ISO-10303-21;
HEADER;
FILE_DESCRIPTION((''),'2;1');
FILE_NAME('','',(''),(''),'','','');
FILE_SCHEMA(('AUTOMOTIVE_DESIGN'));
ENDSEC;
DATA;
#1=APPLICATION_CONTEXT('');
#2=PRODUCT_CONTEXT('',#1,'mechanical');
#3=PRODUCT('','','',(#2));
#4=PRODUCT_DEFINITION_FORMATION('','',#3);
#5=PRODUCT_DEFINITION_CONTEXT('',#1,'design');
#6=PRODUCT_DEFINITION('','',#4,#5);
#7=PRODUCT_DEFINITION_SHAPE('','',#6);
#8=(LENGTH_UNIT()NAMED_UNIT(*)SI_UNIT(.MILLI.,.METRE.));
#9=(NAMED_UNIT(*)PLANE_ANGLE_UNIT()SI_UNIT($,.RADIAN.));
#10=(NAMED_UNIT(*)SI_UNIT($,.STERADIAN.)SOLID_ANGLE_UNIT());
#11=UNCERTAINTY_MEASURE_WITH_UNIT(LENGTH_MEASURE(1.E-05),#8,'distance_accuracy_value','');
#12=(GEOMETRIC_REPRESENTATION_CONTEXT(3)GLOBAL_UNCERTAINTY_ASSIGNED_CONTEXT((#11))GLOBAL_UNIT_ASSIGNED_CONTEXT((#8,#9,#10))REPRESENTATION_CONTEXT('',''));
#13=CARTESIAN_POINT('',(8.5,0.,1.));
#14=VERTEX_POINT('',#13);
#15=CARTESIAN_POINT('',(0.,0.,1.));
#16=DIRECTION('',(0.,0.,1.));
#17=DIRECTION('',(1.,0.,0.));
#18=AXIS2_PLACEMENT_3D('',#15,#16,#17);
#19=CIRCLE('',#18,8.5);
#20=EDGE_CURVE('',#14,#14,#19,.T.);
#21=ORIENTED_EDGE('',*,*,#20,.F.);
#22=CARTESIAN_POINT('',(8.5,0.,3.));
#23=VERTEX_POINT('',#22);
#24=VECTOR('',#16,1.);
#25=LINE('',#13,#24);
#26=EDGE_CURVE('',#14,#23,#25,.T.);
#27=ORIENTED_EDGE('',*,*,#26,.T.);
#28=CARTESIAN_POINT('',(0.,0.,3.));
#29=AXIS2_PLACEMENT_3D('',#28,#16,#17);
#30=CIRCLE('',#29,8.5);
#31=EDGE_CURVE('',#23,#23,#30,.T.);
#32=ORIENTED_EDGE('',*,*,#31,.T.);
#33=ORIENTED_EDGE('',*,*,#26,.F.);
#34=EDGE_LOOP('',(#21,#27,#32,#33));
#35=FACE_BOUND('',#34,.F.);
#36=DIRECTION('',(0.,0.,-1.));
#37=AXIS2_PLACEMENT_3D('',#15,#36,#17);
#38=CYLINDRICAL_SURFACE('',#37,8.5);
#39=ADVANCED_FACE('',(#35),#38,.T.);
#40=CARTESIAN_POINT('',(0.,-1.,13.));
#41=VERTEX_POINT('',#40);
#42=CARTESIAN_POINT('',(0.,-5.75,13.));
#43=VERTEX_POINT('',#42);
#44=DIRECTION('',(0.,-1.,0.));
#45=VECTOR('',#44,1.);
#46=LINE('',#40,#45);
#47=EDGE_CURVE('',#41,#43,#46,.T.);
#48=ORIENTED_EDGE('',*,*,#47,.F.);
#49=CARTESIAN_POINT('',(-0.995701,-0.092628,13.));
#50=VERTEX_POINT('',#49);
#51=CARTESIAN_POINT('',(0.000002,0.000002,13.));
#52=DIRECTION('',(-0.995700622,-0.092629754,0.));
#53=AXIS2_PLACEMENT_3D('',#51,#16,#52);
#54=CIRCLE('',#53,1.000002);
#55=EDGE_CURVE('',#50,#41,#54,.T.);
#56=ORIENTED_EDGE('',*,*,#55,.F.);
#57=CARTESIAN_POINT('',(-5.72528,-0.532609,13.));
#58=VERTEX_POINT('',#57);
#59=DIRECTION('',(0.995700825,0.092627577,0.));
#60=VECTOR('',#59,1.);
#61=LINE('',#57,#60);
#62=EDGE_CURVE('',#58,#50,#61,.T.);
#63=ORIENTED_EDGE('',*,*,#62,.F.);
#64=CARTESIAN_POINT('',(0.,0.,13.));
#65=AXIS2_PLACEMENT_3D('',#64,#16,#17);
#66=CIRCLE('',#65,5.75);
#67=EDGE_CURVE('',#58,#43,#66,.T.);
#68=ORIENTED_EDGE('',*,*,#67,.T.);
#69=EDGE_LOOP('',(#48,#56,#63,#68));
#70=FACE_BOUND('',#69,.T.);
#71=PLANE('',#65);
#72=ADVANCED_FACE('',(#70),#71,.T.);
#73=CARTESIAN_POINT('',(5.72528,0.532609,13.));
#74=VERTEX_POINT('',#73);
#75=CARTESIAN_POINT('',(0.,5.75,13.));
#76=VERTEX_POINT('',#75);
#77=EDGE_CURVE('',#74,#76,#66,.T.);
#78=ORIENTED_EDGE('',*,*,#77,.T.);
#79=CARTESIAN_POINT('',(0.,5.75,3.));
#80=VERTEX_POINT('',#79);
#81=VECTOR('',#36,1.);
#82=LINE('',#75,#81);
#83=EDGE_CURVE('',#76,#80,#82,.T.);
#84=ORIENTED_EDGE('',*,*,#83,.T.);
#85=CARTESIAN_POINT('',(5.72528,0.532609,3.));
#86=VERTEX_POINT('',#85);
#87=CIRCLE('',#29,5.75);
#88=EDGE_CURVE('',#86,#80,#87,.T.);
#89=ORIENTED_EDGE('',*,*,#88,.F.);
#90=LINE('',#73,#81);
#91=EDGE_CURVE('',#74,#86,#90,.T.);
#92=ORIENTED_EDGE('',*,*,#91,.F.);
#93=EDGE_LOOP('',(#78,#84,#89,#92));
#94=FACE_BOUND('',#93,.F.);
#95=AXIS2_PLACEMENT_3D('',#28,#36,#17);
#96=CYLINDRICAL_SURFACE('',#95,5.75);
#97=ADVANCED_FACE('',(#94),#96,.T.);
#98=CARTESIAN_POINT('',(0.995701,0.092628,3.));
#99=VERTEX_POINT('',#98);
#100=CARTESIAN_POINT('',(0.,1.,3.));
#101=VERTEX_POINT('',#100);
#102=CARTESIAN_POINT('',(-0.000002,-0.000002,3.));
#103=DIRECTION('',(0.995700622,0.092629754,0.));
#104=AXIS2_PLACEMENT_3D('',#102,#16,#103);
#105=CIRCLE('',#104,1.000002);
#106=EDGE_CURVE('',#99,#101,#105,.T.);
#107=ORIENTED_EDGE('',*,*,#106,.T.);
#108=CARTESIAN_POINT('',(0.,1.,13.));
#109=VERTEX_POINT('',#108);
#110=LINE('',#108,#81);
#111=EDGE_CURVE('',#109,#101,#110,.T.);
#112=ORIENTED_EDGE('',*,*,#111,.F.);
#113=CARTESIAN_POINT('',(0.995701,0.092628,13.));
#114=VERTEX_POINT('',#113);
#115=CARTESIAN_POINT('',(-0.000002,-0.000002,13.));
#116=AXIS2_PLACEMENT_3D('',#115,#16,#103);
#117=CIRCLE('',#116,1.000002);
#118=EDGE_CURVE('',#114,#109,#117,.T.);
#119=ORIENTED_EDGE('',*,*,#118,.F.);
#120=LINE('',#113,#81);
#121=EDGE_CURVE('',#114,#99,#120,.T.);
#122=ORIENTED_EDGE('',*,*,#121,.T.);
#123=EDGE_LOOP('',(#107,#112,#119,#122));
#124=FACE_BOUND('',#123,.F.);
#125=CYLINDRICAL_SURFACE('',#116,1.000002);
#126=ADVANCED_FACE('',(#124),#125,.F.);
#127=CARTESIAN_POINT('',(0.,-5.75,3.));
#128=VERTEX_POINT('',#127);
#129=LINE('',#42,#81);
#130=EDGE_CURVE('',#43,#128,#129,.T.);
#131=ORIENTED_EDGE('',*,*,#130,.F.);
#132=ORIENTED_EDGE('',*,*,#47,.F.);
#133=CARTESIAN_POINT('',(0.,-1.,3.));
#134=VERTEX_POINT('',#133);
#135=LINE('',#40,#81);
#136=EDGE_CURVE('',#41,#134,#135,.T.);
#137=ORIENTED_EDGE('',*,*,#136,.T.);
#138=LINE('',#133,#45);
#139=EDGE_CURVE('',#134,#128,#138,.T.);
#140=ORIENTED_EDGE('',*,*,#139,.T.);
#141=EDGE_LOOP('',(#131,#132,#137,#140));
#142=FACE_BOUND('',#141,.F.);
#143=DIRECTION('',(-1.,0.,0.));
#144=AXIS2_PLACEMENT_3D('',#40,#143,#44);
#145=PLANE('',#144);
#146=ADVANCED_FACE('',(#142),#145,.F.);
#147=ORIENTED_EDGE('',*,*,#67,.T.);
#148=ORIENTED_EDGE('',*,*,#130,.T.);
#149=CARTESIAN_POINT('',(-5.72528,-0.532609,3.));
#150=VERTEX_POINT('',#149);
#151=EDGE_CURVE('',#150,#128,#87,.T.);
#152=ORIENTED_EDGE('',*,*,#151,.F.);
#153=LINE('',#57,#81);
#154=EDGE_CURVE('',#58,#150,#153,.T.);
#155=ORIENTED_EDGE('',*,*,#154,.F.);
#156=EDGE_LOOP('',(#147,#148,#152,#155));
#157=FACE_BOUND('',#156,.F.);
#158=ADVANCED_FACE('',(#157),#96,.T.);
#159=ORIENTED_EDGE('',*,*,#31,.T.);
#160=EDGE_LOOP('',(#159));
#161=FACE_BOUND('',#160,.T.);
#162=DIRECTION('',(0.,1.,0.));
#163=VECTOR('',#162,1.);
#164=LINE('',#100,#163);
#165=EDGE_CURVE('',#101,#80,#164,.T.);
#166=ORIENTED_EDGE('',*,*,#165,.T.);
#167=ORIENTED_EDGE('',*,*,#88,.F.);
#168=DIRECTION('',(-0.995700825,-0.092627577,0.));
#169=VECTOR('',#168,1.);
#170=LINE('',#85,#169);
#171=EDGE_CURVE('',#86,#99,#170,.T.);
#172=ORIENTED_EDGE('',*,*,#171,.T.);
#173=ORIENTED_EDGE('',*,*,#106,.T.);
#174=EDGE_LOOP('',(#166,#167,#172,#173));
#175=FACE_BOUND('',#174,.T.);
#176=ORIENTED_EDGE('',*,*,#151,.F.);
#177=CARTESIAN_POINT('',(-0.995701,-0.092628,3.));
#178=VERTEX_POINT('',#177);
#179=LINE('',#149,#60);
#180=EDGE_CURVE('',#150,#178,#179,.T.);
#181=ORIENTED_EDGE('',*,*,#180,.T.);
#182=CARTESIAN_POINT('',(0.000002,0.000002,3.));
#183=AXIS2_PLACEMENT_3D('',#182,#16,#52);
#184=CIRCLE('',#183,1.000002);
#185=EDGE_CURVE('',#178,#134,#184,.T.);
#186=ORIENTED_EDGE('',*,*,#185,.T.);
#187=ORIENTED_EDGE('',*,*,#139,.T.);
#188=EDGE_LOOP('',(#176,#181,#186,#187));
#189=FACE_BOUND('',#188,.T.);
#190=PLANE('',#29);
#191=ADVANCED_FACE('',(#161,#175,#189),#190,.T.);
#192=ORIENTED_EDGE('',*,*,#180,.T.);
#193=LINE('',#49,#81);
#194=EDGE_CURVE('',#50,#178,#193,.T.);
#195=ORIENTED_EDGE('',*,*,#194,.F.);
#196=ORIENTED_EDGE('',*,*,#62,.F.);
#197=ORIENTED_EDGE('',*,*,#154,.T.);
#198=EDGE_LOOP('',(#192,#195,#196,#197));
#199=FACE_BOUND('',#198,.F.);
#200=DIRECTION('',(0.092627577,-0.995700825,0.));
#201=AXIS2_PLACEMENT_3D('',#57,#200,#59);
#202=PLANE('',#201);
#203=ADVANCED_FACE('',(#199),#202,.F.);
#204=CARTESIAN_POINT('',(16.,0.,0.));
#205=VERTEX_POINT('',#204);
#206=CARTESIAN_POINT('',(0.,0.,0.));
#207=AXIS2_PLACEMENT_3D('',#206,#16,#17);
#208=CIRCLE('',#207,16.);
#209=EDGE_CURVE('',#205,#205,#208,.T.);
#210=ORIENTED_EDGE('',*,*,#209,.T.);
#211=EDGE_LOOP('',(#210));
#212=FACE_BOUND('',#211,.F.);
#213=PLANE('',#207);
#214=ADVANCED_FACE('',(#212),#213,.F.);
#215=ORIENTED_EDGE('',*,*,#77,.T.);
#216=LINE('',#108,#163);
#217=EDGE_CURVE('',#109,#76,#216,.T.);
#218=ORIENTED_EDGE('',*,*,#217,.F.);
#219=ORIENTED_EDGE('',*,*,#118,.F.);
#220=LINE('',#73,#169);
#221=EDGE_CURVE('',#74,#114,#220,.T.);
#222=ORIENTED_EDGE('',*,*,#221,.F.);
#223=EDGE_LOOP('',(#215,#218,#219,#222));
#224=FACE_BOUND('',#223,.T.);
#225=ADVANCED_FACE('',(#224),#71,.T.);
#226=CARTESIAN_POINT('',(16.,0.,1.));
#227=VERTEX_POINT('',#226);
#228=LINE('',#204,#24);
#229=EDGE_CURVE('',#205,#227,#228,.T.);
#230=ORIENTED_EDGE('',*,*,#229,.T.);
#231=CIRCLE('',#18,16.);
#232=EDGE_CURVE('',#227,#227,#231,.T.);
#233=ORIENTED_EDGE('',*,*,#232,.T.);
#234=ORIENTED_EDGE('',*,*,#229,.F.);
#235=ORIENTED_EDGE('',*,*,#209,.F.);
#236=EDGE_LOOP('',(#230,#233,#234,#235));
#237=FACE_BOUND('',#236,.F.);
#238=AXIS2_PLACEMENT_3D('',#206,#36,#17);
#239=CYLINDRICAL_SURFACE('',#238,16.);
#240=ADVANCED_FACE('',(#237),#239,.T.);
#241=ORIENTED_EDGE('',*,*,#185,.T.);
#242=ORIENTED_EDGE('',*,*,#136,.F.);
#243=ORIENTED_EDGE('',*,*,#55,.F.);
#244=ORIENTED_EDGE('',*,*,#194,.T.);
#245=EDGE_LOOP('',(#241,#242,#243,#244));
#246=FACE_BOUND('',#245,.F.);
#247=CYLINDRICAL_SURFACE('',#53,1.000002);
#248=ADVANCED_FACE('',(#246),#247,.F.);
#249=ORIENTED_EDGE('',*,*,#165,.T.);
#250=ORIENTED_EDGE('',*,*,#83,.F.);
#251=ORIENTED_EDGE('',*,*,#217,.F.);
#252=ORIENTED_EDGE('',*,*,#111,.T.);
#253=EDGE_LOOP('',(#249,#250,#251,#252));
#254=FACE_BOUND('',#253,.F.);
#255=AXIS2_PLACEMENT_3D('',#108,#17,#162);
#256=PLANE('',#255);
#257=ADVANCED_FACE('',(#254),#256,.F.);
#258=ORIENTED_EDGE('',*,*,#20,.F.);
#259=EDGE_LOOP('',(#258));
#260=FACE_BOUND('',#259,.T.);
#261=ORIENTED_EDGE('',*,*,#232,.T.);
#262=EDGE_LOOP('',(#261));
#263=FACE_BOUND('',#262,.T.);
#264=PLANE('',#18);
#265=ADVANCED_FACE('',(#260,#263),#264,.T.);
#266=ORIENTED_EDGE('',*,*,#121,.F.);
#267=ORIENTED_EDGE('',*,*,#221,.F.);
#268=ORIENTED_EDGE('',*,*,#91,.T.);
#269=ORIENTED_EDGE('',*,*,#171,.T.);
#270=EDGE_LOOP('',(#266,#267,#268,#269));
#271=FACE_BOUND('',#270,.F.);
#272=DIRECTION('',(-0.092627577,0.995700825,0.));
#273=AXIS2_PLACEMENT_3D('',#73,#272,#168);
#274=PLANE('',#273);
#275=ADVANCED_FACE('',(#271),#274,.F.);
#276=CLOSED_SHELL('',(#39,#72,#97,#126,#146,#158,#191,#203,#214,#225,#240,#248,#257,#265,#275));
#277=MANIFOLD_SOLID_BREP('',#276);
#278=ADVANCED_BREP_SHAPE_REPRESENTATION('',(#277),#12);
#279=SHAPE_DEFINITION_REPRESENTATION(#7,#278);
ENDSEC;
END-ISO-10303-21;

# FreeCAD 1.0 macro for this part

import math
import FreeCAD as App
import Part
import Sketcher

V = App.Vector

doc = App.newDocument("Part")
body = doc.addObject("PartDesign::Body", "Body")

# Sketch on XY plane
sketch1 = body.newObject("Sketcher::SketchObject", "Sketch")
sketch1.AttachmentSupport = (doc.getObject("XY_Plane"), [""])
sketch1.MapMode = "FlatFace"
sketch1.addGeometry(Part.Circle(V(0, 0, 0), V(0, 0, 1), 16), False)
sketch1.addConstraint([
    Sketcher.Constraint("Coincident", 0, 3, -1, 1),
    Sketcher.Constraint("Diameter", 0, 32.0),
])
pad1 = body.newObject("PartDesign::Pad", "Pad")
pad1.Profile = sketch1
pad1.Length = 1

# Sketch on XY plane
sketch2 = body.newObject("Sketcher::SketchObject", "Sketch001")
sketch2.AttachmentSupport = (doc.getObject("XY_Plane"), [""])
sketch2.MapMode = "FlatFace"
sketch2.AttachmentOffset = App.Placement(V(0, 0, 1), App.Rotation())
sketch2.addGeometry(Part.Circle(V(0, 0, 0), V(0, 0, 1), 8.5), False)
sketch2.addConstraint([
    Sketcher.Constraint("Coincident", 0, 3, -1, 1),
    Sketcher.Constraint("Diameter", 0, 17.0),
])
pad2 = body.newObject("PartDesign::Pad", "Pad001")
pad2.Profile = sketch2
pad2.Length = 2

# Sketch on XY plane
sketch3 = body.newObject("Sketcher::SketchObject", "Sketch002")
sketch3.AttachmentSupport = (doc.getObject("XY_Plane"), [""])
sketch3.MapMode = "FlatFace"
sketch3.AttachmentOffset = App.Placement(V(0, 0, 3), App.Rotation())
sketch3.addGeometry(Part.Circle(V(0, 0, 0), V(0, 0, 1), 5.75), False)
sketch3.addConstraint([
    Sketcher.Constraint("Coincident", 0, 3, -1, 1),
    Sketcher.Constraint("Diameter", 0, 11.5),
])
pad3 = body.newObject("PartDesign::Pad", "Pad002")
pad3.Profile = sketch3
pad3.Length = 10

# Sketch on XY plane
sketch4 = body.newObject("Sketcher::SketchObject", "Sketch003")
sketch4.AttachmentSupport = (doc.getObject("XY_Plane"), [""])
sketch4.MapMode = "FlatFace"
sketch4.AttachmentOffset = App.Placement(V(0, 0, 13), App.Rotation())
sketch4.addGeometry([
    Part.LineSegment(V(0, 1, 0), V(0, 5.75, 0)),  # 0
    Part.ArcOfCircle(Part.Circle(V(0.000001, -0.000001, 0), V(0, 0, 1), 5.750001), math.radians(90.000007), math.radians(185.314782)),  # 1
    Part.LineSegment(V(-5.72528, -0.532609, 0), V(-0.995701, -0.092628, 0)),  # 2
    Part.ArcOfCircle(Part.Circle(V(0.000002, 0.000002, 0), V(0, 0, 1), 1.000002), math.radians(-174.685087), math.radians(-90.000089)),  # 3
    Part.LineSegment(V(0, -1, 0), V(0, -5.75, 0)),  # 4
    Part.ArcOfCircle(Part.Circle(V(-0.000001, 0.000001, 0), V(0, 0, 1), 5.750001), math.radians(-89.999993), math.radians(5.314782)),  # 5
    Part.LineSegment(V(5.72528, 0.532609, 0), V(0.995701, 0.092628, 0)),  # 6
    Part.ArcOfCircle(Part.Circle(V(-0.000002, -0.000002, 0), V(0, 0, 1), 1.000002), math.radians(5.314913), math.radians(89.999911)),  # 7
], False)
sketch4.addConstraint([
    Sketcher.Constraint("Coincident", 0, 2, 1, 1),
    Sketcher.Constraint("Coincident", 1, 2, 2, 1),
    Sketcher.Constraint("Coincident", 2, 2, 3, 1),
    Sketcher.Constraint("Coincident", 3, 2, 4, 1),
    Sketcher.Constraint("Coincident", 4, 2, 5, 1),
    Sketcher.Constraint("Coincident", 5, 2, 6, 1),
    Sketcher.Constraint("Coincident", 6, 2, 7, 1),
    Sketcher.Constraint("Coincident", 7, 2, 0, 1),
    Sketcher.Constraint("Vertical", 0),
    Sketcher.Constraint("Vertical", 4),
    Sketcher.Constraint("Coincident", 1, 3, -1, 1),
    Sketcher.Constraint("Coincident", 3, 3, -1, 1),
    Sketcher.Constraint("Coincident", 5, 3, -1, 1),
    Sketcher.Constraint("Coincident", 7, 3, -1, 1),
    Sketcher.Constraint("Equal", 1, 5),
    Sketcher.Constraint("Equal", 3, 7),
    Sketcher.Constraint("PointOnObject", 0, 2, -2),
    Sketcher.Constraint("PointOnObject", 3, 2, -2),
    Sketcher.Constraint("Parallel", 2, 6),
    Sketcher.Constraint("Radius", 3, 1.000002),
    Sketcher.Constraint("Radius", 1, 5.750001),
    Sketcher.Constraint("DistanceX", 2, 2, -1, 1, 0.995701),
    Sketcher.Constraint("DistanceX", -1, 1, 6, 2, 0.995701),
    Sketcher.Constraint("DistanceX", 1, 2, -1, 1, 5.72528),
])
pocket1 = body.newObject("PartDesign::Pocket", "Pocket")
pocket1.Profile = sketch4
pocket1.Length = 10

doc.recompute()
